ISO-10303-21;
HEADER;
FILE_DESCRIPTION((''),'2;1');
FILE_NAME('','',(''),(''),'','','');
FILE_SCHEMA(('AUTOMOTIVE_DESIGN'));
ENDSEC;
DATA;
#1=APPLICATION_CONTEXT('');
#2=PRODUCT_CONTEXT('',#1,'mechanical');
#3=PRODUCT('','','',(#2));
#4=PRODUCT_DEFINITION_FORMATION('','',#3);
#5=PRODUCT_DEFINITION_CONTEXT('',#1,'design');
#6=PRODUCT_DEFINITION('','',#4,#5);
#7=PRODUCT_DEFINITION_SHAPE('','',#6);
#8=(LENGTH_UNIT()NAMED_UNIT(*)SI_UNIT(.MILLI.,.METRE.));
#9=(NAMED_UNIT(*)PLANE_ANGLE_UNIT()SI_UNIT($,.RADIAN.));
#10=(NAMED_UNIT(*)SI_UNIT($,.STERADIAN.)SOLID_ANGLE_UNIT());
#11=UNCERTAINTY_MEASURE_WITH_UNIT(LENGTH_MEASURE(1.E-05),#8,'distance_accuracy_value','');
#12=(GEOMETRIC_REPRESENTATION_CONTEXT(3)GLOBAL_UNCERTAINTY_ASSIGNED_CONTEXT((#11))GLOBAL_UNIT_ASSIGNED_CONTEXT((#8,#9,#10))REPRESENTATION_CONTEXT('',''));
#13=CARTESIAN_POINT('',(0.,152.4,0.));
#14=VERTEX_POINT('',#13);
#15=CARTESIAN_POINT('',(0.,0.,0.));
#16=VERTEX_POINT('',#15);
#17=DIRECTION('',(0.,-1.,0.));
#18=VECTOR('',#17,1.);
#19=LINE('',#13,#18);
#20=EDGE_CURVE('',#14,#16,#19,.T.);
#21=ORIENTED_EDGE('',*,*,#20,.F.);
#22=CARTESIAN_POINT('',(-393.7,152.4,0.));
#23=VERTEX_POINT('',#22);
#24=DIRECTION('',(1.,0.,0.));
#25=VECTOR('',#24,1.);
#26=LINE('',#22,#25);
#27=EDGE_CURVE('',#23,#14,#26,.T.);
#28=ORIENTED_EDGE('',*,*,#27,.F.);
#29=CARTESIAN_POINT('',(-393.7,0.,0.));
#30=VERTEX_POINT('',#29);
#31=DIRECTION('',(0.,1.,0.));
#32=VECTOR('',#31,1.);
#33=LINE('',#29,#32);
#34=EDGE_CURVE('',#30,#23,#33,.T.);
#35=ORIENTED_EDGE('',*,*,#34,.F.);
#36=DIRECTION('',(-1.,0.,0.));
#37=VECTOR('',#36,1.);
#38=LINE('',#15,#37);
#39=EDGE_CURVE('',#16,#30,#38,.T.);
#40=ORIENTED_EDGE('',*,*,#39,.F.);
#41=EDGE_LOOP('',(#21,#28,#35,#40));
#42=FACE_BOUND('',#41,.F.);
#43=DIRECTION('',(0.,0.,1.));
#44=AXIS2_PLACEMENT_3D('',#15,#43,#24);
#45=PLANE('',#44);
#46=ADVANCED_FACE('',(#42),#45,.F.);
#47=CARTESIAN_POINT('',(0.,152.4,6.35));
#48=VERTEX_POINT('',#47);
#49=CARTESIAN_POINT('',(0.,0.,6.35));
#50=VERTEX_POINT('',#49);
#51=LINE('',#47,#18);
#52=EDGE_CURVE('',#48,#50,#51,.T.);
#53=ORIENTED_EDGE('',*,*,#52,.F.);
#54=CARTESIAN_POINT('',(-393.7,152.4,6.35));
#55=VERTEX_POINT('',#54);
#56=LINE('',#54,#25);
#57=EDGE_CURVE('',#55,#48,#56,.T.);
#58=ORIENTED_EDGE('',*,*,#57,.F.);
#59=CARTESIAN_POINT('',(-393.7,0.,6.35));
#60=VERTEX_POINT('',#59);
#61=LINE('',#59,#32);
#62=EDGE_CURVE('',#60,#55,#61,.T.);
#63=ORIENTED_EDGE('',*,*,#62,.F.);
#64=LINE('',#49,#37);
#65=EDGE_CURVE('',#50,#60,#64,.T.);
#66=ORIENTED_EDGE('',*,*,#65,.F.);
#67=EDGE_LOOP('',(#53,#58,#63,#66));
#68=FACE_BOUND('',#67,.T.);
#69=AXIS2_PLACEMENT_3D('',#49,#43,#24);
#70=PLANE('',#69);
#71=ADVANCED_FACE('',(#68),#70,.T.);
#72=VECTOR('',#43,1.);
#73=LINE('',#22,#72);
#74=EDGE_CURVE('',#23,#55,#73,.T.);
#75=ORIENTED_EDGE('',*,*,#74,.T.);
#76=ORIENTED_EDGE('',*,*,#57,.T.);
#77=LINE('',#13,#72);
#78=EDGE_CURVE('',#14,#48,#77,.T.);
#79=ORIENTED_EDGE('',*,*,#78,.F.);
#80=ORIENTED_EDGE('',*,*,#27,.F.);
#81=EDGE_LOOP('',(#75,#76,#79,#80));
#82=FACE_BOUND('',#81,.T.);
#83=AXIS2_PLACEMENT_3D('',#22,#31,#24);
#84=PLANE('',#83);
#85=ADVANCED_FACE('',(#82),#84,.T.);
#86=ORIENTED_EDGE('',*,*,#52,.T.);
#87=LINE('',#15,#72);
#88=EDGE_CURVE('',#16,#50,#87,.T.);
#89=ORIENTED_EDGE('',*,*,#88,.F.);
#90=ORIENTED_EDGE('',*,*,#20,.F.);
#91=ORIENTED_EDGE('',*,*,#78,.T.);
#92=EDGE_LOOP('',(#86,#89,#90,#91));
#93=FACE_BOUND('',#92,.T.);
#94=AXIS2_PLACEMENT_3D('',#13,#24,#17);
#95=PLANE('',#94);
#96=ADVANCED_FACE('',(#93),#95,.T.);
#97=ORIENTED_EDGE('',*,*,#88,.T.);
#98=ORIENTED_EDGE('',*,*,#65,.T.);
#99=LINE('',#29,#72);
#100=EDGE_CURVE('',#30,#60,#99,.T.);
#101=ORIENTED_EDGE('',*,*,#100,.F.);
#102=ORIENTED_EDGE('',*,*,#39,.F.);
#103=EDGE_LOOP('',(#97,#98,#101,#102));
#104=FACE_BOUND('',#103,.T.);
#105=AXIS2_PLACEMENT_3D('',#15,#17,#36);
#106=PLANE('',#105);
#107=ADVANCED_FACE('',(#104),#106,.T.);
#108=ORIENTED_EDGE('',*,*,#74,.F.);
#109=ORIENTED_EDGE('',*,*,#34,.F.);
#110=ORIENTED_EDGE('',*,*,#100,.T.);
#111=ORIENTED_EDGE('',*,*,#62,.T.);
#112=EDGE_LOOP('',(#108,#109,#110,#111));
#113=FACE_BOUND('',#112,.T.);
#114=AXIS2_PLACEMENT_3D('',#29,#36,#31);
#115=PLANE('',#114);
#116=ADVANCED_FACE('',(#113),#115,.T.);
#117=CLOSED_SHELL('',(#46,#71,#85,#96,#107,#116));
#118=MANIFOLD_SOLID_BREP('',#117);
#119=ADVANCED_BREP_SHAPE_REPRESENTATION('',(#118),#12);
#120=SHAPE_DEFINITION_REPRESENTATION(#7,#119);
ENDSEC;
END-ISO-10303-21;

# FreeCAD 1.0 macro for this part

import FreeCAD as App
import Part
import Sketcher

V = App.Vector
Q = App.Units.Quantity


def add_polygon(sketch, points):
    """Adds a closed chain of lines whose ends are joined by coincident constraints."""
    first, n = sketch.GeometryCount, len(points)
    for a, b in zip(points, points[1:] + points[:1]):
        sketch.addGeometry(Part.LineSegment(App.Vector(*a, 0), App.Vector(*b, 0)), False)
    for i in range(n):
        sketch.addConstraint(Sketcher.Constraint("Coincident", first + i, 2, first + (i + 1) % n, 1))

doc = App.newDocument("Part")
body = doc.addObject("PartDesign::Body", "Body")

sketch1 = body.newObject("Sketcher::SketchObject", "Sketch")
sketch1.AttachmentSupport = (doc.getObject("XY_Plane"), [""])
sketch1.MapMode = "FlatFace"
add_polygon(sketch1, [(-394, 0), (0, 0), (0, 152), (-394, 152)])
sketch1.addConstraint(Sketcher.Constraint("Horizontal", 0))
sketch1.addConstraint(Sketcher.Constraint("Vertical", 1))
sketch1.addConstraint(Sketcher.Constraint("Horizontal", 2))
sketch1.addConstraint(Sketcher.Constraint("Vertical", 3))
sketch1.addConstraint(Sketcher.Constraint("Coincident", 0, 2, -1, 1))
sketch1.addConstraint(Sketcher.Constraint("DistanceY", 1, 1, 1, 2, Q("6 in")))
sketch1.addConstraint(Sketcher.Constraint("DistanceX", 0, 1, 0, 2, Q("15.5 in")))
pad1 = body.newObject("PartDesign::Pad", "Pad")
pad1.Profile = sketch1
pad1.Length = Q("0.25 in")

doc.recompute()
